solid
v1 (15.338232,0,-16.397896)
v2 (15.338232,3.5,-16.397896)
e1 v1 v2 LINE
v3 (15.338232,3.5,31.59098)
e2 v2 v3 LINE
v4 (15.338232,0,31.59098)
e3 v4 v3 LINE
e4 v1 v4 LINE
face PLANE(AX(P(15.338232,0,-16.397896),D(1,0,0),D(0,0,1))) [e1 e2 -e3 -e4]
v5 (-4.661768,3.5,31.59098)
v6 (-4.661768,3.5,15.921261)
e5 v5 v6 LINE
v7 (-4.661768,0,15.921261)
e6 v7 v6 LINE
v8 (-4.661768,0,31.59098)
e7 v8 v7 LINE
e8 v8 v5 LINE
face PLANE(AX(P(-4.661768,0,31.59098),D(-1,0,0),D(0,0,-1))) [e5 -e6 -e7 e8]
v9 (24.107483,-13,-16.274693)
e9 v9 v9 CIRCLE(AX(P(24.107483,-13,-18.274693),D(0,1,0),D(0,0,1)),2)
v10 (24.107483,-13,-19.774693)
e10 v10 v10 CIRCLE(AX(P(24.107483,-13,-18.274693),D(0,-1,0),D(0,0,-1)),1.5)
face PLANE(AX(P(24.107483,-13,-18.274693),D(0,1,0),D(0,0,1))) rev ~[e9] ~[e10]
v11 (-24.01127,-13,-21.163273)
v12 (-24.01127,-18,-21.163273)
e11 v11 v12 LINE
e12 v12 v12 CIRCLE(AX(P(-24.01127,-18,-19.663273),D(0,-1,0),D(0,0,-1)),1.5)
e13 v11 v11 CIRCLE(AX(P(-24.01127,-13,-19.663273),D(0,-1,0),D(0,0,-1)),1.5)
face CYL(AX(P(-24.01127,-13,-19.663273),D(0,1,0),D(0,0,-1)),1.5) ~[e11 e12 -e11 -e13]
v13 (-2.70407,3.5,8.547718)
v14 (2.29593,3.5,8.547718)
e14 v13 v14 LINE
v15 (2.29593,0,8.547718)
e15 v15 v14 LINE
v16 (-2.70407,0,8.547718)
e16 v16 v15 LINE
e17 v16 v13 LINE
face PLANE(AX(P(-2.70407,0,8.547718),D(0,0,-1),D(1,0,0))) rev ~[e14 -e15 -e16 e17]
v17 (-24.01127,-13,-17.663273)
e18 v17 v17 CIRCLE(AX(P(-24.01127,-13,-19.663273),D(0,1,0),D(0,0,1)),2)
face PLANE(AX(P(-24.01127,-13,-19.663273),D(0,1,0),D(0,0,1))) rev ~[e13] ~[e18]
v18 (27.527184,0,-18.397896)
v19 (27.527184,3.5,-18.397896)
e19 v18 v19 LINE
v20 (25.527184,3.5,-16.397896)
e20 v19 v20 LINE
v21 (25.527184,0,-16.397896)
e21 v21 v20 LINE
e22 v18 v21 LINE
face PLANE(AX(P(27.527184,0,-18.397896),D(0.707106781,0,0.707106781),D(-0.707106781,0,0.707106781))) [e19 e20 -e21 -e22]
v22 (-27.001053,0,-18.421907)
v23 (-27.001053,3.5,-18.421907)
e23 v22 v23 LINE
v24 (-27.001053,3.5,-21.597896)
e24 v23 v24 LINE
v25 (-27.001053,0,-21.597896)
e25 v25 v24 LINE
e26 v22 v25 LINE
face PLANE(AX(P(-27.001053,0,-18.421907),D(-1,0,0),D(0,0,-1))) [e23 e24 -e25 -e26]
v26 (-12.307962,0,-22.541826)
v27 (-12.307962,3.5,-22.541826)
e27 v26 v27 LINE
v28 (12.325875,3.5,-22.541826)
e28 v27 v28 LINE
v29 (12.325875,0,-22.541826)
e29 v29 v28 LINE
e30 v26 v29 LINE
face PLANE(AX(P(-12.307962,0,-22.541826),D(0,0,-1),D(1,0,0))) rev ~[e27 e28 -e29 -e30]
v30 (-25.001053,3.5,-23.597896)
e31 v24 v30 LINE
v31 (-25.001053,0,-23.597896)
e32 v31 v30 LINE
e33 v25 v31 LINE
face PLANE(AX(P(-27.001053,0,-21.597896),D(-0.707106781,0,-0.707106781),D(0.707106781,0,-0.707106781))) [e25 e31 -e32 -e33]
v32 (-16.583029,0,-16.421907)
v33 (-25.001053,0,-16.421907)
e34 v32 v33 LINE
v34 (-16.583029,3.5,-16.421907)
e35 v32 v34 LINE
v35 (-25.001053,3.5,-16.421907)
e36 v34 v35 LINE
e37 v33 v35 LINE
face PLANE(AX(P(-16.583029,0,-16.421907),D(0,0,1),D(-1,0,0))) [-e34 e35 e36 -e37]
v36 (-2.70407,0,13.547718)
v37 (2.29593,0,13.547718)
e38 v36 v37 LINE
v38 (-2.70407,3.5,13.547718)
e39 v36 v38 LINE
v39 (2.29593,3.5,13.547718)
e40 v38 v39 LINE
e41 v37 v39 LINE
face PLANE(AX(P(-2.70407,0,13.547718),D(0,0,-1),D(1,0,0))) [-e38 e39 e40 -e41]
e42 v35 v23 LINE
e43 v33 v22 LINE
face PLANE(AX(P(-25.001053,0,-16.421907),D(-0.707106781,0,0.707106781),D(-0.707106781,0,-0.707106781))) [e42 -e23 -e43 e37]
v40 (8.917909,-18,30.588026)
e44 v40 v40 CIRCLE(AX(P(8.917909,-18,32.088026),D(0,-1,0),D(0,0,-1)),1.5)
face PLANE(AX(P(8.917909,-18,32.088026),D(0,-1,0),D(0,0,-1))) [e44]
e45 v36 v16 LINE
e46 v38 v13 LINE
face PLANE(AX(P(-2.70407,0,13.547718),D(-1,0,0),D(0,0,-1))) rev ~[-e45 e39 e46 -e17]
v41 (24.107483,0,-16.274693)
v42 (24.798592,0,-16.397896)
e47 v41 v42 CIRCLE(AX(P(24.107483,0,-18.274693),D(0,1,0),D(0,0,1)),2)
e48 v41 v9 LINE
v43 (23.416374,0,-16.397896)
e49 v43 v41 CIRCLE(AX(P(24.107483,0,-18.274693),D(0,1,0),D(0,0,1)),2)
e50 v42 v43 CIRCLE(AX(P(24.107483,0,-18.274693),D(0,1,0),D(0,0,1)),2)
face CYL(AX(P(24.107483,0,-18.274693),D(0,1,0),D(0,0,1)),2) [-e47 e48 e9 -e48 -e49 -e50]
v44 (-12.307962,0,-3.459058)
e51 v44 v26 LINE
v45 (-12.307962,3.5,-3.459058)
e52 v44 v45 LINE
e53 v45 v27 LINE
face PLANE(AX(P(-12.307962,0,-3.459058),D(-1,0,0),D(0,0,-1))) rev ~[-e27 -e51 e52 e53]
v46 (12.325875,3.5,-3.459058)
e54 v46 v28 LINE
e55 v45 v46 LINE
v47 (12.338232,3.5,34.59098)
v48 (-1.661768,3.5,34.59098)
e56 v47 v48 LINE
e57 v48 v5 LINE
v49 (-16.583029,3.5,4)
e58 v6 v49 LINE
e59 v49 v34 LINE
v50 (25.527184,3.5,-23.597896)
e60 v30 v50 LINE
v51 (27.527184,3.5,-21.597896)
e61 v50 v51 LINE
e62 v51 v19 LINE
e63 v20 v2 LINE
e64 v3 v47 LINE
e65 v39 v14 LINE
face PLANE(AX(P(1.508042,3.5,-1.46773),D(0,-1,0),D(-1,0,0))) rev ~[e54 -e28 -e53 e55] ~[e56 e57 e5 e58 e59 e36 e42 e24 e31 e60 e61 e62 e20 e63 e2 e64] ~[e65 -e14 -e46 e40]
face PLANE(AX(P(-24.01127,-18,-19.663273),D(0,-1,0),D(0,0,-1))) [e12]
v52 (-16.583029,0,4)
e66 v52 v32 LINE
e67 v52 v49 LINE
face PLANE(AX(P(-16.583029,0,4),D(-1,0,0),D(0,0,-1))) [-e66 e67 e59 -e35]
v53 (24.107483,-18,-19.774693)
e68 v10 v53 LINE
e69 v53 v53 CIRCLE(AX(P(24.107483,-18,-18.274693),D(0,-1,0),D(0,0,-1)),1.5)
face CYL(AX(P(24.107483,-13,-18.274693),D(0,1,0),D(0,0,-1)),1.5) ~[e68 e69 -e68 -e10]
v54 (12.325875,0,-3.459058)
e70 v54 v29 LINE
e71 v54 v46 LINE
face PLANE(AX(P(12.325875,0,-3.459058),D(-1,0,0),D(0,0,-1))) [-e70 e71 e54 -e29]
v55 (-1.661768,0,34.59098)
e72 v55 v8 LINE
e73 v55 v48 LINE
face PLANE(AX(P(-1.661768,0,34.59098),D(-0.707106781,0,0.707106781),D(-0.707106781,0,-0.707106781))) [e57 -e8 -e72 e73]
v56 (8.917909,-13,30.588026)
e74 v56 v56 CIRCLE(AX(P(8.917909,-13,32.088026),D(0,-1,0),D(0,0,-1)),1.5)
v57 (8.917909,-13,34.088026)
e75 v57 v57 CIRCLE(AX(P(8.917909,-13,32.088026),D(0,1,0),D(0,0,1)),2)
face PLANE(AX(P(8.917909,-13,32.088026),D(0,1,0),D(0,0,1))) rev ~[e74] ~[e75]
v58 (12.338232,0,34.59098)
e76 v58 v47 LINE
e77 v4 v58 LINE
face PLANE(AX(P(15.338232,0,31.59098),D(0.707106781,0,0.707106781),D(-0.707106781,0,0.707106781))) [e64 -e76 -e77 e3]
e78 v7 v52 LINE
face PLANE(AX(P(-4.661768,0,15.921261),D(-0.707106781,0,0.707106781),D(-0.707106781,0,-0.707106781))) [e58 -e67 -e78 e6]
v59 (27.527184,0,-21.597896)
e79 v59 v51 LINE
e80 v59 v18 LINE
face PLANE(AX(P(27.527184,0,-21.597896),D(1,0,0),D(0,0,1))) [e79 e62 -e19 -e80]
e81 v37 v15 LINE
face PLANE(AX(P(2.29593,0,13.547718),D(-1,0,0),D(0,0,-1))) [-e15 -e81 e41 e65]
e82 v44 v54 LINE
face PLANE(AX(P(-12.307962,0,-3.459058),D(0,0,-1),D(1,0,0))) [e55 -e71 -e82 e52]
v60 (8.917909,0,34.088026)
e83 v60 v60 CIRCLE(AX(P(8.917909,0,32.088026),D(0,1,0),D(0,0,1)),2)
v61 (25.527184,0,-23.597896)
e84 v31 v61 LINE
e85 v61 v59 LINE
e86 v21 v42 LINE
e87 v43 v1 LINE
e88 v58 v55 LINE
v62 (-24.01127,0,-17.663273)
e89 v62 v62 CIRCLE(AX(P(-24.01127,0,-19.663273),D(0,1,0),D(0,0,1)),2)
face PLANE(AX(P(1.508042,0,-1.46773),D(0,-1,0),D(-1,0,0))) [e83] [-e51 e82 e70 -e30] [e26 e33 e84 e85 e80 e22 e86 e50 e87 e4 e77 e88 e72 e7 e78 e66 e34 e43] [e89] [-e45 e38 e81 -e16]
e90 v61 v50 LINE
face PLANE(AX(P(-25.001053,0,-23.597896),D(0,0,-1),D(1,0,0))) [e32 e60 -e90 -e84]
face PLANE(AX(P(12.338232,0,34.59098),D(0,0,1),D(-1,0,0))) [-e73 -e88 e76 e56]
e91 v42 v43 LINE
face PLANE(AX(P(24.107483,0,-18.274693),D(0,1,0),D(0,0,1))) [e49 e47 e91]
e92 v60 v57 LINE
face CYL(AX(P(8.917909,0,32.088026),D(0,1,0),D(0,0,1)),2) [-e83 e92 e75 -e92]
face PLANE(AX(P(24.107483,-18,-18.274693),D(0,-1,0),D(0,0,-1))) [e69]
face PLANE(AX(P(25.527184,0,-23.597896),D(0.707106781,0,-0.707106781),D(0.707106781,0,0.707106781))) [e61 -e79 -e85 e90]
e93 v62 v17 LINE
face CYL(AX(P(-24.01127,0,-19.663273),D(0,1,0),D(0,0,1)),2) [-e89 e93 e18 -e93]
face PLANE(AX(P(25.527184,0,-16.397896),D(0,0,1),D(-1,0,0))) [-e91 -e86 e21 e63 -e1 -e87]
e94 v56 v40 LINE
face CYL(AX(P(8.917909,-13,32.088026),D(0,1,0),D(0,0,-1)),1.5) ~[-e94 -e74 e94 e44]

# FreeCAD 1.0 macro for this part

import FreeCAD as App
import Part
import Sketcher
Q = App.Units.Quantity

doc = App.newDocument("Part")
params = doc.addObject("Spreadsheet::Sheet", "Params")
for row, (alias, value) in enumerate([
    ("sketch1_width", "14 mm"),
    ("sketch1_width2", "5 mm"),
    ("sketch1_height", "3.2 mm"),
    ("pad1_length", "3.5 mm"),
    ("sketch2_diameter", "4 mm"),
    ("pad2_length", "13 mm"),
    ("sketch3_diameter", "3 mm"),
    ("pad3_length", "5 mm"),
], start=1):
    params.set(f"A{row}", alias)
    params.set(f"B{row}", "=" + value)
    params.setAlias(f"B{row}", alias)

body = doc.addObject("PartDesign::Body", "Body")

sketch1 = body.newObject("Sketcher::SketchObject", "Sketch")
sketch1.AttachmentSupport = (doc.getObject("XZ_Plane"), [""])
sketch1.MapMode = "FlatFace"
sketch1.addGeometry([
    Part.LineSegment(App.Vector(25.5, -23.6, 0), App.Vector(-25, -23.6, 0)),
    Part.LineSegment(App.Vector(-25, -23.6, 0), App.Vector(-27, -21.6, 0)),
    Part.LineSegment(App.Vector(-27, -21.6, 0), App.Vector(-27, -18.4, 0)),
    Part.LineSegment(App.Vector(-27, -18.4, 0), App.Vector(-25, -16.4, 0)),
    Part.LineSegment(App.Vector(-25, -16.4, 0), App.Vector(-16.6, -16.4, 0)),
    Part.LineSegment(App.Vector(-16.6, -16.4, 0), App.Vector(-16.6, 4, 0)),
    Part.LineSegment(App.Vector(-16.6, 4, 0), App.Vector(-4.7, 15.9, 0)),
    Part.LineSegment(App.Vector(-4.7, 15.9, 0), App.Vector(-4.7, 31.6, 0)),
    Part.LineSegment(App.Vector(-4.7, 31.6, 0), App.Vector(-1.7, 34.6, 0)),
    Part.LineSegment(App.Vector(-1.7, 34.6, 0), App.Vector(12.3, 34.6, 0)),
    Part.LineSegment(App.Vector(12.3, 34.6, 0), App.Vector(15.3, 31.6, 0)),
    Part.LineSegment(App.Vector(15.3, 31.6, 0), App.Vector(15.3, -16.4, 0)),
    Part.LineSegment(App.Vector(15.3, -16.4, 0), App.Vector(25.5, -16.4, 0)),
    Part.LineSegment(App.Vector(25.5, -16.4, 0), App.Vector(27.5, -18.4, 0)),
    Part.LineSegment(App.Vector(27.5, -18.4, 0), App.Vector(27.5, -21.6, 0)),
    Part.LineSegment(App.Vector(27.5, -21.6, 0), App.Vector(25.5, -23.6, 0)),
    Part.LineSegment(App.Vector(-2.7, 13.5, 0), App.Vector(-2.7, 8.5, 0)),
    Part.LineSegment(App.Vector(-2.7, 8.5, 0), App.Vector(2.3, 8.5, 0)),
    Part.LineSegment(App.Vector(2.3, 8.5, 0), App.Vector(2.3, 13.5, 0)),
    Part.LineSegment(App.Vector(2.3, 13.5, 0), App.Vector(-2.7, 13.5, 0)),
    Part.LineSegment(App.Vector(-12.3, -3.5, 0), App.Vector(-12.3, -22.5, 0)),
    Part.LineSegment(App.Vector(-12.3, -22.5, 0), App.Vector(12.3, -22.5, 0)),
    Part.LineSegment(App.Vector(12.3, -22.5, 0), App.Vector(12.3, -3.5, 0)),
    Part.LineSegment(App.Vector(12.3, -3.5, 0), App.Vector(-12.3, -3.5, 0)),
], False)
sketch1.addConstraint([
    Sketcher.Constraint("Coincident", 0, 2, 1, 1),
    Sketcher.Constraint("Coincident", 1, 2, 2, 1),
    Sketcher.Constraint("Coincident", 2, 2, 3, 1),
    Sketcher.Constraint("Coincident", 3, 2, 4, 1),
    Sketcher.Constraint("Coincident", 4, 2, 5, 1),
    Sketcher.Constraint("Coincident", 5, 2, 6, 1),
    Sketcher.Constraint("Coincident", 6, 2, 7, 1),
    Sketcher.Constraint("Coincident", 7, 2, 8, 1),
    Sketcher.Constraint("Coincident", 8, 2, 9, 1),
    Sketcher.Constraint("Coincident", 9, 2, 10, 1),
    Sketcher.Constraint("Coincident", 10, 2, 11, 1),
    Sketcher.Constraint("Coincident", 11, 2, 12, 1),
    Sketcher.Constraint("Coincident", 12, 2, 13, 1),
    Sketcher.Constraint("Coincident", 13, 2, 14, 1),
    Sketcher.Constraint("Coincident", 14, 2, 15, 1),
    Sketcher.Constraint("Coincident", 15, 2, 0, 1),
    Sketcher.Constraint("Coincident", 16, 2, 17, 1),
    Sketcher.Constraint("Coincident", 17, 2, 18, 1),
    Sketcher.Constraint("Coincident", 18, 2, 19, 1),
    Sketcher.Constraint("Coincident", 19, 2, 16, 1),
    Sketcher.Constraint("Coincident", 20, 2, 21, 1),
    Sketcher.Constraint("Coincident", 21, 2, 22, 1),
    Sketcher.Constraint("Coincident", 22, 2, 23, 1),
    Sketcher.Constraint("Coincident", 23, 2, 20, 1),
    Sketcher.Constraint("Horizontal", 0),
    Sketcher.Constraint("Vertical", 2),
    Sketcher.Constraint("Horizontal", 4),
    Sketcher.Constraint("Vertical", 5),
    Sketcher.Constraint("Vertical", 7),
    Sketcher.Constraint("Horizontal", 9),
    Sketcher.Constraint("Vertical", 11),
    Sketcher.Constraint("Horizontal", 12),
    Sketcher.Constraint("Vertical", 14),
    Sketcher.Constraint("Vertical", 16),
    Sketcher.Constraint("Horizontal", 17),
    Sketcher.Constraint("Vertical", 18),
    Sketcher.Constraint("Horizontal", 19),
    Sketcher.Constraint("Vertical", 20),
    Sketcher.Constraint("Horizontal", 21),
    Sketcher.Constraint("Vertical", 22),
    Sketcher.Constraint("Horizontal", 23),
    Sketcher.Constraint("Perpendicular", 1, 3),
    Sketcher.Constraint("Parallel", 3, 6),
    Sketcher.Constraint("Parallel", 6, 8),
    Sketcher.Constraint("Perpendicular", 8, 10),
    Sketcher.Constraint("Parallel", 10, 13),
    Sketcher.Constraint("Perpendicular", 13, 15),
    Sketcher.Constraint("Horizontal", 7, 2, 10, 2),
    Sketcher.Constraint("Horizontal", 1, 2, 14, 2),
    Sketcher.Constraint("Vertical", 0, 2, 3, 2),
    Sketcher.Constraint("Vertical", 12, 2, 15, 2),
    Sketcher.Constraint("Equal", 19, 16),
    Sketcher.Constraint("Equal", 1, 3),
    Sketcher.Constraint("DistanceX", 9, 1, 9, 2, Q("14 mm")),
    Sketcher.Constraint("DistanceX", 17, 1, 17, 2, Q("5 mm")),
    Sketcher.Constraint("DistanceY", 14, 2, 14, 1, Q("3.2 mm")),
    Sketcher.Constraint("DistanceY", -1, 1, 5, 2, Q("4 mm")),
    Sketcher.Constraint("DistanceX", 1, 2, 0, 2, Q("2 mm")),
    Sketcher.Constraint("DistanceX", 7, 2, 8, 2, Q("3 mm")),
    Sketcher.Constraint("DistanceY", 2, 1, 2, 2, Q("3.175989 mm")),
    Sketcher.Constraint("DistanceY", 7, 1, 7, 2, Q("15.669719 mm")),
    Sketcher.Constraint("DistanceY", 20, 2, 20, 1, Q("19.082768 mm")),
    Sketcher.Constraint("DistanceX", 6, 2, 16, 2, Q("1.957698 mm")),
    Sketcher.Constraint("Distance", 6, Q("16.859209 mm")),
    Sketcher.Constraint("DistanceX", 0, 2, 0, 1, Q("50.528237 mm")),
    Sketcher.Constraint("DistanceX", 4, 1, 4, 2, Q("8.418024 mm")),
    Sketcher.Constraint("DistanceX", 21, 1, 21, 2, Q("24.633837 mm")),
    Sketcher.Constraint("DistanceY", 5, 1, 5, 2, Q("20.421907 mm")),
    Sketcher.Constraint("DistanceX", 4, 2, -1, 1, Q("16.583029 mm")),
    Sketcher.Constraint("DistanceY", 20, 2, 4, 2, Q("6.119919 mm")),
    Sketcher.Constraint("DistanceX", 0, 2, 20, 2, Q("12.693091 mm")),
    Sketcher.Constraint("DistanceY", -1, 1, 16, 2, Q("8.547718 mm")),
])
sketch1.setExpression("Constraints[53]", "Params.sketch1_width")
sketch1.setExpression("Constraints[54]", "Params.sketch1_width2")
sketch1.setExpression("Constraints[55]", "Params.sketch1_height")
pad1 = body.newObject("PartDesign::Pad", "Pad")
pad1.Profile = sketch1
pad1.setExpression("Length", "Params.pad1_length")
pad1.Reversed = True

sketch2 = body.newObject("Sketcher::SketchObject", "Sketch001")
sketch2.AttachmentSupport = (doc.getObject("XZ_Plane"), [""])
sketch2.MapMode = "FlatFace"
sketch2.addGeometry([
    Part.Circle(App.Vector(-24, -19.7, 0), App.Vector(0, 0, 1), 2),
    Part.Circle(App.Vector(24.1, -18.3, 0), App.Vector(0, 0, 1), 2),
    Part.Circle(App.Vector(8.9, 32.1, 0), App.Vector(0, 0, 1), 2),
], False)
sketch2.addConstraint([
    Sketcher.Constraint("Equal", 0, 1),
    Sketcher.Constraint("Equal", 1, 2),
    Sketcher.Constraint("Diameter", 0, Q("4 mm")),
    Sketcher.Constraint("DistanceY", 0, 3, 2, 3, Q("51.7513 mm")),
    Sketcher.Constraint("DistanceX", 0, 3, -1, 1, Q("24.01127 mm")),
    Sketcher.Constraint("DistanceX", -1, 1, 2, 3, Q("8.917909 mm")),
    Sketcher.Constraint("DistanceY", 0, 3, 1, 3, Q("1.38858 mm")),
    Sketcher.Constraint("DistanceY", 0, 3, -1, 1, Q("19.663273 mm")),
    Sketcher.Constraint("DistanceX", -1, 1, 1, 3, Q("24.107483 mm")),
])
sketch2.setExpression("Constraints[2]", "Params.sketch2_diameter")
pad2 = body.newObject("PartDesign::Pad", "Pad001")
pad2.Profile = sketch2
pad2.setExpression("Length", "Params.pad2_length")

sketch3 = body.newObject("Sketcher::SketchObject", "Sketch002")
sketch3.AttachmentSupport = (doc.getObject("XZ_Plane"), [""])
sketch3.MapMode = "FlatFace"
sketch3.AttachmentOffset = App.Placement(App.Vector(0, 0, 13), App.Rotation())
sketch3.addGeometry([
    Part.Circle(App.Vector(-24, -19.7, 0), App.Vector(0, 0, 1), 1.5),
    Part.Circle(App.Vector(8.9, 32.1, 0), App.Vector(0, 0, 1), 1.5),
    Part.Circle(App.Vector(24.1, -18.3, 0), App.Vector(0, 0, 1), 1.5),
], False)
sketch3.addConstraint([
    Sketcher.Constraint("Equal", 0, 1),
    Sketcher.Constraint("Equal", 1, 2),
    Sketcher.Constraint("Diameter", 0, Q("3 mm")),
    Sketcher.Constraint("DistanceY", 0, 3, 1, 3, Q("51.7513 mm")),
    Sketcher.Constraint("DistanceX", 0, 3, -1, 1, Q("24.01127 mm")),
    Sketcher.Constraint("DistanceX", -1, 1, 1, 3, Q("8.917909 mm")),
    Sketcher.Constraint("DistanceY", 0, 3, 2, 3, Q("1.38858 mm")),
    Sketcher.Constraint("DistanceY", 0, 3, -1, 1, Q("19.663273 mm")),
    Sketcher.Constraint("DistanceX", -1, 1, 2, 3, Q("24.107483 mm")),
])
sketch3.setExpression("Constraints[2]", "Params.sketch3_diameter")
pad3 = body.newObject("PartDesign::Pad", "Pad002")
pad3.Profile = sketch3
pad3.setExpression("Length", "Params.pad3_length")

doc.recompute()
